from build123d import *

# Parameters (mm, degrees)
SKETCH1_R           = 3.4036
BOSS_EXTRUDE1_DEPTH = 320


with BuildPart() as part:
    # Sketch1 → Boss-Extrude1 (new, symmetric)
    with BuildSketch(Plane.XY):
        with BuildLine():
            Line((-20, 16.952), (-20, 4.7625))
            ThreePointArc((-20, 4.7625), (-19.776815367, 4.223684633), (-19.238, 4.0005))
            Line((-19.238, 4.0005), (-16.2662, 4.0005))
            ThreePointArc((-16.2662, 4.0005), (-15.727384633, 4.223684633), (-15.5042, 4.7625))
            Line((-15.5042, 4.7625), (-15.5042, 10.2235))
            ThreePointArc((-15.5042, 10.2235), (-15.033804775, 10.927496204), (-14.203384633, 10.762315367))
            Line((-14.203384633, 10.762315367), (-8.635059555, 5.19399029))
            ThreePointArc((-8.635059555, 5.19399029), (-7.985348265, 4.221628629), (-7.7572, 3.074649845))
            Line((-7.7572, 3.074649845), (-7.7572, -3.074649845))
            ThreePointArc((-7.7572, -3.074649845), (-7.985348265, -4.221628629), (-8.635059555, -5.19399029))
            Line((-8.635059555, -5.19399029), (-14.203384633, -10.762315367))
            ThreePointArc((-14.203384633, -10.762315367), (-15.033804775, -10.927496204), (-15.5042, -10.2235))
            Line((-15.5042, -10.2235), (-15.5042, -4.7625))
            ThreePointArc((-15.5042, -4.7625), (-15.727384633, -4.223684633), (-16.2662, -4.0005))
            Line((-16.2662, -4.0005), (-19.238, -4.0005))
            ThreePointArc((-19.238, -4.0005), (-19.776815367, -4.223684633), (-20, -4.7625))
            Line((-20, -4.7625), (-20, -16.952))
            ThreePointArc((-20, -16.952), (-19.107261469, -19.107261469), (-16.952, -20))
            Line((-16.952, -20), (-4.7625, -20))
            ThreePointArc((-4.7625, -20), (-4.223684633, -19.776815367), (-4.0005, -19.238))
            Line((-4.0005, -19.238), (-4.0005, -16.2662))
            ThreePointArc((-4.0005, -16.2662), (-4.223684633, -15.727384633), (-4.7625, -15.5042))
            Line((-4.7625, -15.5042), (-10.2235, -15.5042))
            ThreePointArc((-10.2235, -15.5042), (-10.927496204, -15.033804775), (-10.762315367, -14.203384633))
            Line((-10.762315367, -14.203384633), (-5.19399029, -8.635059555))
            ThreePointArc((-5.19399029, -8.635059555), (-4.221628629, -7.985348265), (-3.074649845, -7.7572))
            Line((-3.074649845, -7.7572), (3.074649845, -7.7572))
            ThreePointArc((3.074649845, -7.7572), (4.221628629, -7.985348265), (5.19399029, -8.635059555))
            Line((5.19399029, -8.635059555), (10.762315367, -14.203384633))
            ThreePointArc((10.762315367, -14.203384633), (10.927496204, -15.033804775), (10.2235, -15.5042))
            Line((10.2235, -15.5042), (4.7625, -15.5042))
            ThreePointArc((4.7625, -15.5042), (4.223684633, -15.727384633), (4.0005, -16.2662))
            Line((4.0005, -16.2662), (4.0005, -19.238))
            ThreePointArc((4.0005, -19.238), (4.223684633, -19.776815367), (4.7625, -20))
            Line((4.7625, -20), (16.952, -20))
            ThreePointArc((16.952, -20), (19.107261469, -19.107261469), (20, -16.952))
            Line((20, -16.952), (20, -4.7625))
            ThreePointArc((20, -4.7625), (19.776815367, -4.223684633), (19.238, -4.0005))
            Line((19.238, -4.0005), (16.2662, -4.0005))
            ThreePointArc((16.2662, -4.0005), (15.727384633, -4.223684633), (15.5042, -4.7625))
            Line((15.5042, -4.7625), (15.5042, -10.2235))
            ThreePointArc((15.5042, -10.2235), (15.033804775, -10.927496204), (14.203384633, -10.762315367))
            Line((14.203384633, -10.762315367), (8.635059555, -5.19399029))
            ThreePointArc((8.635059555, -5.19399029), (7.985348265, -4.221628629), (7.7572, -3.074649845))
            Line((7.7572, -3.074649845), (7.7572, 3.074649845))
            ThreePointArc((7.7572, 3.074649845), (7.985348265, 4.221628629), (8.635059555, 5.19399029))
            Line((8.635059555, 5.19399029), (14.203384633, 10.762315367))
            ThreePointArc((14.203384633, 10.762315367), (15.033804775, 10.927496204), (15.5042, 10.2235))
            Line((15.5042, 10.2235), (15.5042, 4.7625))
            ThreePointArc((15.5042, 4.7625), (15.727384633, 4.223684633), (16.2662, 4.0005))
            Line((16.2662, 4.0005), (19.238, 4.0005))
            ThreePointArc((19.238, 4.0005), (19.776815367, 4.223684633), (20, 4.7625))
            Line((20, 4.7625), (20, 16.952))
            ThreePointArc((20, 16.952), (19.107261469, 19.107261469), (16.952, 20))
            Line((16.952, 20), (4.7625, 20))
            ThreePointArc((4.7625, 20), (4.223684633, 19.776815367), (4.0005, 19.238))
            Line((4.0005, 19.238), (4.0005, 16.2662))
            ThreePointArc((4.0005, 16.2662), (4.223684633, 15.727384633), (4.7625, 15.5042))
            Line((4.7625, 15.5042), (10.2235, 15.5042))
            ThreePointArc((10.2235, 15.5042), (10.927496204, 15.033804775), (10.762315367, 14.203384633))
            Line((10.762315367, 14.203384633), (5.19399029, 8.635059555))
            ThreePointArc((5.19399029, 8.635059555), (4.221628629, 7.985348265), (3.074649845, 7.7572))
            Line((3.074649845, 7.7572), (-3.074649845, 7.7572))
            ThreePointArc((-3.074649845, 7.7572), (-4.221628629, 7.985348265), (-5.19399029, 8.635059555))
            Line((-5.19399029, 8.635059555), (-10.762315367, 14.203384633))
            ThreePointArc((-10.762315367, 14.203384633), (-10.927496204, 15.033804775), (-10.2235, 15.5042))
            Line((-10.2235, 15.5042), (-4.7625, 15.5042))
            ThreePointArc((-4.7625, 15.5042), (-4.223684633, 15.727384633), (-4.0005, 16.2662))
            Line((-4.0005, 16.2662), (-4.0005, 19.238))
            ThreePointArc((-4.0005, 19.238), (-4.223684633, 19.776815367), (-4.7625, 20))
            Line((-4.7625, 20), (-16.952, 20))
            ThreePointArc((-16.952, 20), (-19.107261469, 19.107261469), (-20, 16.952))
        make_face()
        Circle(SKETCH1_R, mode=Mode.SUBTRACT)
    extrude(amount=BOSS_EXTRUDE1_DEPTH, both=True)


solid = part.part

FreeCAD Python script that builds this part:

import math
import FreeCAD as App
import Part
import Sketcher
from FreeCAD import Vector
Q = App.Units.Quantity

doc = App.newDocument("Part")
body = doc.addObject("PartDesign::Body", "Body")

# Sketch on XY plane
sketch1 = body.newObject("Sketcher::SketchObject", "Sketch")
sketch1.AttachmentSupport = (doc.getObject("XY_Plane"), [""])
sketch1.MapMode = "FlatFace"
sketch1.addGeometry([
    Part.LineSegment(Vector(-20, 16.952, 0), Vector(-20, 4.7625, 0)),  # 0
    Part.ArcOfCircle(Part.Circle(Vector(-19.238, 4.7625, 0), Vector(0, 0, 1), 0.762), math.radians(-180), math.radians(-90)),  # 1
    Part.LineSegment(Vector(-19.238, 4.0005, 0), Vector(-16.2662, 4.0005, 0)),  # 2
    Part.ArcOfCircle(Part.Circle(Vector(-16.2662, 4.7625, 0), Vector(0, 0, 1), 0.762), math.radians(-90), math.radians(0)),  # 3
    Part.LineSegment(Vector(-15.5042, 4.7625, 0), Vector(-15.5042, 10.2235, 0)),  # 4
    Part.ArcOfCircle(Part.Circle(Vector(-14.7422, 10.2235, 0), Vector(0, 0, 1), 0.762), math.radians(45), math.radians(180)),  # 5
    Part.LineSegment(Vector(-14.203385, 10.762315, 0), Vector(-8.63506, 5.19399, 0)),  # 6
    Part.ArcOfCircle(Part.Circle(Vector(-10.7544, 3.07465, 0), Vector(0, 0, 1), 2.9972), math.radians(0), math.radians(45)),  # 7
    Part.LineSegment(Vector(-7.7572, 3.07465, 0), Vector(-7.7572, -3.07465, 0)),  # 8
    Part.ArcOfCircle(Part.Circle(Vector(-10.7544, -3.07465, 0), Vector(0, 0, 1), 2.9972), math.radians(-45), math.radians(0)),  # 9
    Part.LineSegment(Vector(-8.63506, -5.19399, 0), Vector(-14.203385, -10.762315, 0)),  # 10
    Part.ArcOfCircle(Part.Circle(Vector(-14.7422, -10.2235, 0), Vector(0, 0, 1), 0.762), math.radians(180), math.radians(315)),  # 11
    Part.LineSegment(Vector(-15.5042, -10.2235, 0), Vector(-15.5042, -4.7625, 0)),  # 12
    Part.ArcOfCircle(Part.Circle(Vector(-16.2662, -4.7625, 0), Vector(0, 0, 1), 0.762), math.radians(0), math.radians(90)),  # 13
    Part.LineSegment(Vector(-16.2662, -4.0005, 0), Vector(-19.238, -4.0005, 0)),  # 14
    Part.ArcOfCircle(Part.Circle(Vector(-19.238, -4.7625, 0), Vector(0, 0, 1), 0.762), math.radians(90), math.radians(180)),  # 15
    Part.LineSegment(Vector(-20, -4.7625, 0), Vector(-20, -16.952, 0)),  # 16
    Part.ArcOfCircle(Part.Circle(Vector(-16.952, -16.952, 0), Vector(0, 0, 1), 3.048), math.radians(180), math.radians(270)),  # 17
    Part.LineSegment(Vector(-16.952, -20, 0), Vector(-4.7625, -20, 0)),  # 18
    Part.ArcOfCircle(Part.Circle(Vector(-4.7625, -19.238, 0), Vector(0, 0, 1), 0.762), math.radians(-90), math.radians(0)),  # 19
    Part.LineSegment(Vector(-4.0005, -19.238, 0), Vector(-4.0005, -16.2662, 0)),  # 20
    Part.ArcOfCircle(Part.Circle(Vector(-4.7625, -16.2662, 0), Vector(0, 0, 1), 0.762), math.radians(0), math.radians(90)),  # 21
    Part.LineSegment(Vector(-4.7625, -15.5042, 0), Vector(-10.2235, -15.5042, 0)),  # 22
    Part.ArcOfCircle(Part.Circle(Vector(-10.2235, -14.7422, 0), Vector(0, 0, 1), 0.762), math.radians(135), math.radians(270)),  # 23
    Part.LineSegment(Vector(-10.762315, -14.203385, 0), Vector(-5.19399, -8.63506, 0)),  # 24
    Part.ArcOfCircle(Part.Circle(Vector(-3.07465, -10.7544, 0), Vector(0, 0, 1), 2.9972), math.radians(90), math.radians(135)),  # 25
    Part.LineSegment(Vector(-3.07465, -7.7572, 0), Vector(3.07465, -7.7572, 0)),  # 26
    Part.ArcOfCircle(Part.Circle(Vector(3.07465, -10.7544, 0), Vector(0, 0, 1), 2.9972), math.radians(45), math.radians(90)),  # 27
    Part.LineSegment(Vector(5.19399, -8.63506, 0), Vector(10.762315, -14.203385, 0)),  # 28
    Part.ArcOfCircle(Part.Circle(Vector(10.2235, -14.7422, 0), Vector(0, 0, 1), 0.762), math.radians(-90), math.radians(45)),  # 29
    Part.LineSegment(Vector(10.2235, -15.5042, 0), Vector(4.7625, -15.5042, 0)),  # 30
    Part.ArcOfCircle(Part.Circle(Vector(4.7625, -16.2662, 0), Vector(0, 0, 1), 0.762), math.radians(90), math.radians(180)),  # 31
    Part.LineSegment(Vector(4.0005, -16.2662, 0), Vector(4.0005, -19.238, 0)),  # 32
    Part.ArcOfCircle(Part.Circle(Vector(4.7625, -19.238, 0), Vector(0, 0, 1), 0.762), math.radians(-180), math.radians(-90)),  # 33
    Part.LineSegment(Vector(4.7625, -20, 0), Vector(16.952, -20, 0)),  # 34
    Part.ArcOfCircle(Part.Circle(Vector(16.952, -16.952, 0), Vector(0, 0, 1), 3.048), math.radians(-90), math.radians(0)),  # 35
    Part.LineSegment(Vector(20, -16.952, 0), Vector(20, -4.7625, 0)),  # 36
    Part.ArcOfCircle(Part.Circle(Vector(19.238, -4.7625, 0), Vector(0, 0, 1), 0.762), math.radians(0), math.radians(90)),  # 37
    Part.LineSegment(Vector(19.238, -4.0005, 0), Vector(16.2662, -4.0005, 0)),  # 38
    Part.ArcOfCircle(Part.Circle(Vector(16.2662, -4.7625, 0), Vector(0, 0, 1), 0.762), math.radians(90), math.radians(180)),  # 39
    Part.LineSegment(Vector(15.5042, -4.7625, 0), Vector(15.5042, -10.2235, 0)),  # 40
    Part.ArcOfCircle(Part.Circle(Vector(14.7422, -10.2235, 0), Vector(0, 0, 1), 0.762), math.radians(-135), math.radians(0)),  # 41
    Part.LineSegment(Vector(14.203385, -10.762315, 0), Vector(8.63506, -5.19399, 0)),  # 42
    Part.ArcOfCircle(Part.Circle(Vector(10.7544, -3.07465, 0), Vector(0, 0, 1), 2.9972), math.radians(180), math.radians(225)),  # 43
    Part.LineSegment(Vector(7.7572, -3.07465, 0), Vector(7.7572, 3.07465, 0)),  # 44
    Part.ArcOfCircle(Part.Circle(Vector(10.7544, 3.07465, 0), Vector(0, 0, 1), 2.9972), math.radians(135), math.radians(180)),  # 45
    Part.LineSegment(Vector(8.63506, 5.19399, 0), Vector(14.203385, 10.762315, 0)),  # 46
    Part.ArcOfCircle(Part.Circle(Vector(14.7422, 10.2235, 0), Vector(0, 0, 1), 0.762), math.radians(0), math.radians(135)),  # 47
    Part.LineSegment(Vector(15.5042, 10.2235, 0), Vector(15.5042, 4.7625, 0)),  # 48
    Part.ArcOfCircle(Part.Circle(Vector(16.2662, 4.7625, 0), Vector(0, 0, 1), 0.762), math.radians(-180), math.radians(-90)),  # 49
    Part.LineSegment(Vector(16.2662, 4.0005, 0), Vector(19.238, 4.0005, 0)),  # 50
    Part.ArcOfCircle(Part.Circle(Vector(19.238, 4.7625, 0), Vector(0, 0, 1), 0.762), math.radians(-90), math.radians(0)),  # 51
    Part.LineSegment(Vector(20, 4.7625, 0), Vector(20, 16.952, 0)),  # 52
    Part.ArcOfCircle(Part.Circle(Vector(16.952, 16.952, 0), Vector(0, 0, 1), 3.048), math.radians(0), math.radians(90)),  # 53
    Part.LineSegment(Vector(16.952, 20, 0), Vector(4.7625, 20, 0)),  # 54
    Part.ArcOfCircle(Part.Circle(Vector(4.7625, 19.238, 0), Vector(0, 0, 1), 0.762), math.radians(90), math.radians(180)),  # 55
    Part.LineSegment(Vector(4.0005, 19.238, 0), Vector(4.0005, 16.2662, 0)),  # 56
    Part.ArcOfCircle(Part.Circle(Vector(4.7625, 16.2662, 0), Vector(0, 0, 1), 0.762), math.radians(-180), math.radians(-90)),  # 57
    Part.LineSegment(Vector(4.7625, 15.5042, 0), Vector(10.2235, 15.5042, 0)),  # 58
    Part.ArcOfCircle(Part.Circle(Vector(10.2235, 14.7422, 0), Vector(0, 0, 1), 0.762), math.radians(-45), math.radians(90)),  # 59
    Part.LineSegment(Vector(10.762315, 14.203385, 0), Vector(5.19399, 8.63506, 0)),  # 60
    Part.ArcOfCircle(Part.Circle(Vector(3.07465, 10.7544, 0), Vector(0, 0, 1), 2.9972), math.radians(-90), math.radians(-45)),  # 61
    Part.LineSegment(Vector(3.07465, 7.7572, 0), Vector(-3.07465, 7.7572, 0)),  # 62
    Part.ArcOfCircle(Part.Circle(Vector(-3.07465, 10.7544, 0), Vector(0, 0, 1), 2.9972), math.radians(-135), math.radians(-90)),  # 63
    Part.LineSegment(Vector(-5.19399, 8.63506, 0), Vector(-10.762315, 14.203385, 0)),  # 64
    Part.ArcOfCircle(Part.Circle(Vector(-10.2235, 14.7422, 0), Vector(0, 0, 1), 0.762), math.radians(90), math.radians(225)),  # 65
    Part.LineSegment(Vector(-10.2235, 15.5042, 0), Vector(-4.7625, 15.5042, 0)),  # 66
    Part.ArcOfCircle(Part.Circle(Vector(-4.7625, 16.2662, 0), Vector(0, 0, 1), 0.762), math.radians(-90), math.radians(0)),  # 67
    Part.LineSegment(Vector(-4.0005, 16.2662, 0), Vector(-4.0005, 19.238, 0)),  # 68
    Part.ArcOfCircle(Part.Circle(Vector(-4.7625, 19.238, 0), Vector(0, 0, 1), 0.762), math.radians(0), math.radians(90)),  # 69
    Part.LineSegment(Vector(-4.7625, 20, 0), Vector(-16.952, 20, 0)),  # 70
    Part.ArcOfCircle(Part.Circle(Vector(-16.952, 16.952, 0), Vector(0, 0, 1), 3.048), math.radians(90), math.radians(180)),  # 71
    Part.Circle(Vector(0, 0, 0), Vector(0, 0, 1), 3.4036),  # 72
], False)
sketch1.addConstraint([
    Sketcher.Constraint("Tangent", 0, 2, 1, 1),
    Sketcher.Constraint("Tangent", 1, 2, 2, 1),
    Sketcher.Constraint("Tangent", 2, 2, 3, 1),
    Sketcher.Constraint("Tangent", 3, 2, 4, 1),
    Sketcher.Constraint("Tangent", 4, 2, 5, 2),
    Sketcher.Constraint("Tangent", 5, 1, 6, 1),
    Sketcher.Constraint("Tangent", 6, 2, 7, 2),
    Sketcher.Constraint("Tangent", 7, 1, 8, 1),
    Sketcher.Constraint("Tangent", 8, 2, 9, 2),
    Sketcher.Constraint("Tangent", 9, 1, 10, 1),
    Sketcher.Constraint("Tangent", 10, 2, 11, 2),
    Sketcher.Constraint("Tangent", 11, 1, 12, 1),
    Sketcher.Constraint("Tangent", 12, 2, 13, 1),
    Sketcher.Constraint("Tangent", 13, 2, 14, 1),
    Sketcher.Constraint("Tangent", 14, 2, 15, 1),
    Sketcher.Constraint("Tangent", 15, 2, 16, 1),
    Sketcher.Constraint("Tangent", 16, 2, 17, 1),
    Sketcher.Constraint("Tangent", 17, 2, 18, 1),
    Sketcher.Constraint("Tangent", 18, 2, 19, 1),
    Sketcher.Constraint("Tangent", 19, 2, 20, 1),
    Sketcher.Constraint("Tangent", 20, 2, 21, 1),
    Sketcher.Constraint("Tangent", 21, 2, 22, 1),
    Sketcher.Constraint("Tangent", 22, 2, 23, 2),
    Sketcher.Constraint("Tangent", 23, 1, 24, 1),
    Sketcher.Constraint("Tangent", 24, 2, 25, 2),
    Sketcher.Constraint("Tangent", 25, 1, 26, 1),
    Sketcher.Constraint("Tangent", 26, 2, 27, 2),
    Sketcher.Constraint("Tangent", 27, 1, 28, 1),
    Sketcher.Constraint("Tangent", 28, 2, 29, 2),
    Sketcher.Constraint("Tangent", 29, 1, 30, 1),
    Sketcher.Constraint("Tangent", 30, 2, 31, 1),
    Sketcher.Constraint("Tangent", 31, 2, 32, 1),
    Sketcher.Constraint("Tangent", 32, 2, 33, 1),
    Sketcher.Constraint("Tangent", 33, 2, 34, 1),
    Sketcher.Constraint("Tangent", 34, 2, 35, 1),
    Sketcher.Constraint("Tangent", 35, 2, 36, 1),
    Sketcher.Constraint("Tangent", 36, 2, 37, 1),
    Sketcher.Constraint("Tangent", 37, 2, 38, 1),
    Sketcher.Constraint("Tangent", 38, 2, 39, 1),
    Sketcher.Constraint("Tangent", 39, 2, 40, 1),
    Sketcher.Constraint("Tangent", 40, 2, 41, 2),
    Sketcher.Constraint("Tangent", 41, 1, 42, 1),
    Sketcher.Constraint("Tangent", 42, 2, 43, 2),
    Sketcher.Constraint("Tangent", 43, 1, 44, 1),
    Sketcher.Constraint("Tangent", 44, 2, 45, 2),
    Sketcher.Constraint("Tangent", 45, 1, 46, 1),
    Sketcher.Constraint("Tangent", 46, 2, 47, 2),
    Sketcher.Constraint("Tangent", 47, 1, 48, 1),
    Sketcher.Constraint("Tangent", 48, 2, 49, 1),
    Sketcher.Constraint("Tangent", 49, 2, 50, 1),
    Sketcher.Constraint("Tangent", 50, 2, 51, 1),
    Sketcher.Constraint("Tangent", 51, 2, 52, 1),
    Sketcher.Constraint("Tangent", 52, 2, 53, 1),
    Sketcher.Constraint("Tangent", 53, 2, 54, 1),
    Sketcher.Constraint("Tangent", 54, 2, 55, 1),
    Sketcher.Constraint("Tangent", 55, 2, 56, 1),
    Sketcher.Constraint("Tangent", 56, 2, 57, 1),
    Sketcher.Constraint("Tangent", 57, 2, 58, 1),
    Sketcher.Constraint("Tangent", 58, 2, 59, 2),
    Sketcher.Constraint("Tangent", 59, 1, 60, 1),
    Sketcher.Constraint("Tangent", 60, 2, 61, 2),
    Sketcher.Constraint("Tangent", 61, 1, 62, 1),
    Sketcher.Constraint("Tangent", 62, 2, 63, 2),
    Sketcher.Constraint("Tangent", 63, 1, 64, 1),
    Sketcher.Constraint("Tangent", 64, 2, 65, 2),
    Sketcher.Constraint("Tangent", 65, 1, 66, 1),
    Sketcher.Constraint("Tangent", 66, 2, 67, 1),
    Sketcher.Constraint("Tangent", 67, 2, 68, 1),
    Sketcher.Constraint("Tangent", 68, 2, 69, 1),
    Sketcher.Constraint("Tangent", 69, 2, 70, 1),
    Sketcher.Constraint("Tangent", 70, 2, 71, 1),
    Sketcher.Constraint("Tangent", 71, 2, 0, 1),
    Sketcher.Constraint("Vertical", 0),
    Sketcher.Constraint("Horizontal", 2),
    Sketcher.Constraint("Vertical", 4),
    Sketcher.Constraint("Vertical", 8),
    Sketcher.Constraint("Vertical", 12),
    Sketcher.Constraint("Horizontal", 14),
    Sketcher.Constraint("Vertical", 16),
    Sketcher.Constraint("Horizontal", 18),
    Sketcher.Constraint("Vertical", 20),
    Sketcher.Constraint("Horizontal", 22),
    Sketcher.Constraint("Horizontal", 26),
    Sketcher.Constraint("Horizontal", 30),
    Sketcher.Constraint("Vertical", 32),
    Sketcher.Constraint("Horizontal", 34),
    Sketcher.Constraint("Vertical", 36),
    Sketcher.Constraint("Horizontal", 38),
    Sketcher.Constraint("Vertical", 40),
    Sketcher.Constraint("Vertical", 44),
    Sketcher.Constraint("Vertical", 48),
    Sketcher.Constraint("Horizontal", 50),
    Sketcher.Constraint("Vertical", 52),
    Sketcher.Constraint("Horizontal", 54),
    Sketcher.Constraint("Vertical", 56),
    Sketcher.Constraint("Horizontal", 58),
    Sketcher.Constraint("Horizontal", 62),
    Sketcher.Constraint("Horizontal", 66),
    Sketcher.Constraint("Vertical", 68),
    Sketcher.Constraint("Horizontal", 70),
    Sketcher.Constraint("Coincident", 72, 3, -1, 1),
    Sketcher.Constraint("Equal", 1, 3),
    Sketcher.Constraint("Equal", 3, 5),
    Sketcher.Constraint("Equal", 7, 9),
    Sketcher.Constraint("Equal", 5, 11),
    Sketcher.Constraint("Equal", 11, 13),
    Sketcher.Constraint("Equal", 13, 15),
    Sketcher.Constraint("Equal", 15, 19),
    Sketcher.Constraint("Equal", 19, 21),
    Sketcher.Constraint("Equal", 21, 23),
    Sketcher.Constraint("Equal", 9, 25),
    Sketcher.Constraint("Equal", 25, 27),
    Sketcher.Constraint("Equal", 23, 29),
    Sketcher.Constraint("Equal", 29, 31),
    Sketcher.Constraint("Equal", 31, 33),
    Sketcher.Constraint("Equal", 17, 35),
    Sketcher.Constraint("Equal", 33, 37),
    Sketcher.Constraint("Equal", 37, 39),
    Sketcher.Constraint("Equal", 39, 41),
    Sketcher.Constraint("Equal", 27, 43),
    Sketcher.Constraint("Equal", 43, 45),
    Sketcher.Constraint("Equal", 41, 47),
    Sketcher.Constraint("Equal", 47, 49),
    Sketcher.Constraint("Equal", 49, 51),
    Sketcher.Constraint("Equal", 35, 53),
    Sketcher.Constraint("Equal", 51, 55),
    Sketcher.Constraint("Equal", 55, 57),
    Sketcher.Constraint("Equal", 57, 59),
    Sketcher.Constraint("Equal", 45, 61),
    Sketcher.Constraint("Equal", 61, 63),
    Sketcher.Constraint("Equal", 59, 65),
    Sketcher.Constraint("Equal", 65, 67),
    Sketcher.Constraint("Equal", 67, 69),
    Sketcher.Constraint("Equal", 53, 71),
    Sketcher.Constraint("Symmetric", 1, 3, 37, 3, -1, 1),
    Sketcher.Constraint("Symmetric", 5, 3, 41, 3, -1, 1),
    Sketcher.Constraint("Symmetric", 7, 3, 43, 3, -1, 1),
    Sketcher.Constraint("Symmetric", 11, 3, 47, 3, -1, 1),
    Sketcher.Constraint("Symmetric", 15, 3, 51, 3, -1, 1),
    Sketcher.Constraint("Symmetric", 19, 3, 55, 3, -1, 1),
    Sketcher.Constraint("Symmetric", 23, 3, 59, 3, -1, 1),
    Sketcher.Constraint("Symmetric", 25, 3, 61, 3, -1, 1),
    Sketcher.Constraint("Symmetric", 29, 3, 65, 3, -1, 1),
    Sketcher.Constraint("Symmetric", 33, 3, 69, 3, -1, 1),
    Sketcher.Constraint("Symmetric", 23, 3, 29, 3, -2),
    Sketcher.Constraint("Symmetric", 19, 3, 33, 3, -2),
    Sketcher.Constraint("Symmetric", 15, 3, 37, 3, -2),
    Sketcher.Constraint("Symmetric", 11, 3, 41, 3, -2),
    Sketcher.Constraint("Perpendicular", 6, 10),
    Sketcher.Constraint("Parallel", 10, 24),
    Sketcher.Constraint("Perpendicular", 24, 28),
    Sketcher.Constraint("Perpendicular", 42, 46),
    Sketcher.Constraint("Perpendicular", 60, 64),
    Sketcher.Constraint("Horizontal", 9, 3, 43, 3),
    Sketcher.Constraint("Equal", 70, 0),
    Sketcher.Constraint("Equal", 66, 4),
    Sketcher.Constraint("Equal", 62, 8),
    Sketcher.Constraint("Equal", 50, 20),
    Sketcher.Constraint("Equal", 10, 24),
    Sketcher.Constraint("Radius", 1, Q("0.03 in")),
    Sketcher.Constraint("Radius", 17, Q("0.12 in")),
    Sketcher.Constraint("Diameter", 72, Q("0.268 in")),
    Sketcher.Constraint("Radius", 7, Q("0.118 in")),
    Sketcher.Constraint("DistanceX", 2, 1, 2, 2, Q("0.117 in")),
    Sketcher.Constraint("DistanceX", 22, 2, 22, 1, Q("0.215 in")),
    Sketcher.Constraint("DistanceY", -1, 1, 1, 3, Q("0.1875 in")),
    Sketcher.Constraint("DistanceX", 18, 1, 18, 2, 12.1895),
    Sketcher.Constraint("DistanceX", 26, 1, 26, 2, 6.1493),
])
pad1 = body.newObject("PartDesign::Pad", "Pad")
pad1.Profile = sketch1
pad1.Length = 640
pad1.Midplane = True

doc.recompute()
